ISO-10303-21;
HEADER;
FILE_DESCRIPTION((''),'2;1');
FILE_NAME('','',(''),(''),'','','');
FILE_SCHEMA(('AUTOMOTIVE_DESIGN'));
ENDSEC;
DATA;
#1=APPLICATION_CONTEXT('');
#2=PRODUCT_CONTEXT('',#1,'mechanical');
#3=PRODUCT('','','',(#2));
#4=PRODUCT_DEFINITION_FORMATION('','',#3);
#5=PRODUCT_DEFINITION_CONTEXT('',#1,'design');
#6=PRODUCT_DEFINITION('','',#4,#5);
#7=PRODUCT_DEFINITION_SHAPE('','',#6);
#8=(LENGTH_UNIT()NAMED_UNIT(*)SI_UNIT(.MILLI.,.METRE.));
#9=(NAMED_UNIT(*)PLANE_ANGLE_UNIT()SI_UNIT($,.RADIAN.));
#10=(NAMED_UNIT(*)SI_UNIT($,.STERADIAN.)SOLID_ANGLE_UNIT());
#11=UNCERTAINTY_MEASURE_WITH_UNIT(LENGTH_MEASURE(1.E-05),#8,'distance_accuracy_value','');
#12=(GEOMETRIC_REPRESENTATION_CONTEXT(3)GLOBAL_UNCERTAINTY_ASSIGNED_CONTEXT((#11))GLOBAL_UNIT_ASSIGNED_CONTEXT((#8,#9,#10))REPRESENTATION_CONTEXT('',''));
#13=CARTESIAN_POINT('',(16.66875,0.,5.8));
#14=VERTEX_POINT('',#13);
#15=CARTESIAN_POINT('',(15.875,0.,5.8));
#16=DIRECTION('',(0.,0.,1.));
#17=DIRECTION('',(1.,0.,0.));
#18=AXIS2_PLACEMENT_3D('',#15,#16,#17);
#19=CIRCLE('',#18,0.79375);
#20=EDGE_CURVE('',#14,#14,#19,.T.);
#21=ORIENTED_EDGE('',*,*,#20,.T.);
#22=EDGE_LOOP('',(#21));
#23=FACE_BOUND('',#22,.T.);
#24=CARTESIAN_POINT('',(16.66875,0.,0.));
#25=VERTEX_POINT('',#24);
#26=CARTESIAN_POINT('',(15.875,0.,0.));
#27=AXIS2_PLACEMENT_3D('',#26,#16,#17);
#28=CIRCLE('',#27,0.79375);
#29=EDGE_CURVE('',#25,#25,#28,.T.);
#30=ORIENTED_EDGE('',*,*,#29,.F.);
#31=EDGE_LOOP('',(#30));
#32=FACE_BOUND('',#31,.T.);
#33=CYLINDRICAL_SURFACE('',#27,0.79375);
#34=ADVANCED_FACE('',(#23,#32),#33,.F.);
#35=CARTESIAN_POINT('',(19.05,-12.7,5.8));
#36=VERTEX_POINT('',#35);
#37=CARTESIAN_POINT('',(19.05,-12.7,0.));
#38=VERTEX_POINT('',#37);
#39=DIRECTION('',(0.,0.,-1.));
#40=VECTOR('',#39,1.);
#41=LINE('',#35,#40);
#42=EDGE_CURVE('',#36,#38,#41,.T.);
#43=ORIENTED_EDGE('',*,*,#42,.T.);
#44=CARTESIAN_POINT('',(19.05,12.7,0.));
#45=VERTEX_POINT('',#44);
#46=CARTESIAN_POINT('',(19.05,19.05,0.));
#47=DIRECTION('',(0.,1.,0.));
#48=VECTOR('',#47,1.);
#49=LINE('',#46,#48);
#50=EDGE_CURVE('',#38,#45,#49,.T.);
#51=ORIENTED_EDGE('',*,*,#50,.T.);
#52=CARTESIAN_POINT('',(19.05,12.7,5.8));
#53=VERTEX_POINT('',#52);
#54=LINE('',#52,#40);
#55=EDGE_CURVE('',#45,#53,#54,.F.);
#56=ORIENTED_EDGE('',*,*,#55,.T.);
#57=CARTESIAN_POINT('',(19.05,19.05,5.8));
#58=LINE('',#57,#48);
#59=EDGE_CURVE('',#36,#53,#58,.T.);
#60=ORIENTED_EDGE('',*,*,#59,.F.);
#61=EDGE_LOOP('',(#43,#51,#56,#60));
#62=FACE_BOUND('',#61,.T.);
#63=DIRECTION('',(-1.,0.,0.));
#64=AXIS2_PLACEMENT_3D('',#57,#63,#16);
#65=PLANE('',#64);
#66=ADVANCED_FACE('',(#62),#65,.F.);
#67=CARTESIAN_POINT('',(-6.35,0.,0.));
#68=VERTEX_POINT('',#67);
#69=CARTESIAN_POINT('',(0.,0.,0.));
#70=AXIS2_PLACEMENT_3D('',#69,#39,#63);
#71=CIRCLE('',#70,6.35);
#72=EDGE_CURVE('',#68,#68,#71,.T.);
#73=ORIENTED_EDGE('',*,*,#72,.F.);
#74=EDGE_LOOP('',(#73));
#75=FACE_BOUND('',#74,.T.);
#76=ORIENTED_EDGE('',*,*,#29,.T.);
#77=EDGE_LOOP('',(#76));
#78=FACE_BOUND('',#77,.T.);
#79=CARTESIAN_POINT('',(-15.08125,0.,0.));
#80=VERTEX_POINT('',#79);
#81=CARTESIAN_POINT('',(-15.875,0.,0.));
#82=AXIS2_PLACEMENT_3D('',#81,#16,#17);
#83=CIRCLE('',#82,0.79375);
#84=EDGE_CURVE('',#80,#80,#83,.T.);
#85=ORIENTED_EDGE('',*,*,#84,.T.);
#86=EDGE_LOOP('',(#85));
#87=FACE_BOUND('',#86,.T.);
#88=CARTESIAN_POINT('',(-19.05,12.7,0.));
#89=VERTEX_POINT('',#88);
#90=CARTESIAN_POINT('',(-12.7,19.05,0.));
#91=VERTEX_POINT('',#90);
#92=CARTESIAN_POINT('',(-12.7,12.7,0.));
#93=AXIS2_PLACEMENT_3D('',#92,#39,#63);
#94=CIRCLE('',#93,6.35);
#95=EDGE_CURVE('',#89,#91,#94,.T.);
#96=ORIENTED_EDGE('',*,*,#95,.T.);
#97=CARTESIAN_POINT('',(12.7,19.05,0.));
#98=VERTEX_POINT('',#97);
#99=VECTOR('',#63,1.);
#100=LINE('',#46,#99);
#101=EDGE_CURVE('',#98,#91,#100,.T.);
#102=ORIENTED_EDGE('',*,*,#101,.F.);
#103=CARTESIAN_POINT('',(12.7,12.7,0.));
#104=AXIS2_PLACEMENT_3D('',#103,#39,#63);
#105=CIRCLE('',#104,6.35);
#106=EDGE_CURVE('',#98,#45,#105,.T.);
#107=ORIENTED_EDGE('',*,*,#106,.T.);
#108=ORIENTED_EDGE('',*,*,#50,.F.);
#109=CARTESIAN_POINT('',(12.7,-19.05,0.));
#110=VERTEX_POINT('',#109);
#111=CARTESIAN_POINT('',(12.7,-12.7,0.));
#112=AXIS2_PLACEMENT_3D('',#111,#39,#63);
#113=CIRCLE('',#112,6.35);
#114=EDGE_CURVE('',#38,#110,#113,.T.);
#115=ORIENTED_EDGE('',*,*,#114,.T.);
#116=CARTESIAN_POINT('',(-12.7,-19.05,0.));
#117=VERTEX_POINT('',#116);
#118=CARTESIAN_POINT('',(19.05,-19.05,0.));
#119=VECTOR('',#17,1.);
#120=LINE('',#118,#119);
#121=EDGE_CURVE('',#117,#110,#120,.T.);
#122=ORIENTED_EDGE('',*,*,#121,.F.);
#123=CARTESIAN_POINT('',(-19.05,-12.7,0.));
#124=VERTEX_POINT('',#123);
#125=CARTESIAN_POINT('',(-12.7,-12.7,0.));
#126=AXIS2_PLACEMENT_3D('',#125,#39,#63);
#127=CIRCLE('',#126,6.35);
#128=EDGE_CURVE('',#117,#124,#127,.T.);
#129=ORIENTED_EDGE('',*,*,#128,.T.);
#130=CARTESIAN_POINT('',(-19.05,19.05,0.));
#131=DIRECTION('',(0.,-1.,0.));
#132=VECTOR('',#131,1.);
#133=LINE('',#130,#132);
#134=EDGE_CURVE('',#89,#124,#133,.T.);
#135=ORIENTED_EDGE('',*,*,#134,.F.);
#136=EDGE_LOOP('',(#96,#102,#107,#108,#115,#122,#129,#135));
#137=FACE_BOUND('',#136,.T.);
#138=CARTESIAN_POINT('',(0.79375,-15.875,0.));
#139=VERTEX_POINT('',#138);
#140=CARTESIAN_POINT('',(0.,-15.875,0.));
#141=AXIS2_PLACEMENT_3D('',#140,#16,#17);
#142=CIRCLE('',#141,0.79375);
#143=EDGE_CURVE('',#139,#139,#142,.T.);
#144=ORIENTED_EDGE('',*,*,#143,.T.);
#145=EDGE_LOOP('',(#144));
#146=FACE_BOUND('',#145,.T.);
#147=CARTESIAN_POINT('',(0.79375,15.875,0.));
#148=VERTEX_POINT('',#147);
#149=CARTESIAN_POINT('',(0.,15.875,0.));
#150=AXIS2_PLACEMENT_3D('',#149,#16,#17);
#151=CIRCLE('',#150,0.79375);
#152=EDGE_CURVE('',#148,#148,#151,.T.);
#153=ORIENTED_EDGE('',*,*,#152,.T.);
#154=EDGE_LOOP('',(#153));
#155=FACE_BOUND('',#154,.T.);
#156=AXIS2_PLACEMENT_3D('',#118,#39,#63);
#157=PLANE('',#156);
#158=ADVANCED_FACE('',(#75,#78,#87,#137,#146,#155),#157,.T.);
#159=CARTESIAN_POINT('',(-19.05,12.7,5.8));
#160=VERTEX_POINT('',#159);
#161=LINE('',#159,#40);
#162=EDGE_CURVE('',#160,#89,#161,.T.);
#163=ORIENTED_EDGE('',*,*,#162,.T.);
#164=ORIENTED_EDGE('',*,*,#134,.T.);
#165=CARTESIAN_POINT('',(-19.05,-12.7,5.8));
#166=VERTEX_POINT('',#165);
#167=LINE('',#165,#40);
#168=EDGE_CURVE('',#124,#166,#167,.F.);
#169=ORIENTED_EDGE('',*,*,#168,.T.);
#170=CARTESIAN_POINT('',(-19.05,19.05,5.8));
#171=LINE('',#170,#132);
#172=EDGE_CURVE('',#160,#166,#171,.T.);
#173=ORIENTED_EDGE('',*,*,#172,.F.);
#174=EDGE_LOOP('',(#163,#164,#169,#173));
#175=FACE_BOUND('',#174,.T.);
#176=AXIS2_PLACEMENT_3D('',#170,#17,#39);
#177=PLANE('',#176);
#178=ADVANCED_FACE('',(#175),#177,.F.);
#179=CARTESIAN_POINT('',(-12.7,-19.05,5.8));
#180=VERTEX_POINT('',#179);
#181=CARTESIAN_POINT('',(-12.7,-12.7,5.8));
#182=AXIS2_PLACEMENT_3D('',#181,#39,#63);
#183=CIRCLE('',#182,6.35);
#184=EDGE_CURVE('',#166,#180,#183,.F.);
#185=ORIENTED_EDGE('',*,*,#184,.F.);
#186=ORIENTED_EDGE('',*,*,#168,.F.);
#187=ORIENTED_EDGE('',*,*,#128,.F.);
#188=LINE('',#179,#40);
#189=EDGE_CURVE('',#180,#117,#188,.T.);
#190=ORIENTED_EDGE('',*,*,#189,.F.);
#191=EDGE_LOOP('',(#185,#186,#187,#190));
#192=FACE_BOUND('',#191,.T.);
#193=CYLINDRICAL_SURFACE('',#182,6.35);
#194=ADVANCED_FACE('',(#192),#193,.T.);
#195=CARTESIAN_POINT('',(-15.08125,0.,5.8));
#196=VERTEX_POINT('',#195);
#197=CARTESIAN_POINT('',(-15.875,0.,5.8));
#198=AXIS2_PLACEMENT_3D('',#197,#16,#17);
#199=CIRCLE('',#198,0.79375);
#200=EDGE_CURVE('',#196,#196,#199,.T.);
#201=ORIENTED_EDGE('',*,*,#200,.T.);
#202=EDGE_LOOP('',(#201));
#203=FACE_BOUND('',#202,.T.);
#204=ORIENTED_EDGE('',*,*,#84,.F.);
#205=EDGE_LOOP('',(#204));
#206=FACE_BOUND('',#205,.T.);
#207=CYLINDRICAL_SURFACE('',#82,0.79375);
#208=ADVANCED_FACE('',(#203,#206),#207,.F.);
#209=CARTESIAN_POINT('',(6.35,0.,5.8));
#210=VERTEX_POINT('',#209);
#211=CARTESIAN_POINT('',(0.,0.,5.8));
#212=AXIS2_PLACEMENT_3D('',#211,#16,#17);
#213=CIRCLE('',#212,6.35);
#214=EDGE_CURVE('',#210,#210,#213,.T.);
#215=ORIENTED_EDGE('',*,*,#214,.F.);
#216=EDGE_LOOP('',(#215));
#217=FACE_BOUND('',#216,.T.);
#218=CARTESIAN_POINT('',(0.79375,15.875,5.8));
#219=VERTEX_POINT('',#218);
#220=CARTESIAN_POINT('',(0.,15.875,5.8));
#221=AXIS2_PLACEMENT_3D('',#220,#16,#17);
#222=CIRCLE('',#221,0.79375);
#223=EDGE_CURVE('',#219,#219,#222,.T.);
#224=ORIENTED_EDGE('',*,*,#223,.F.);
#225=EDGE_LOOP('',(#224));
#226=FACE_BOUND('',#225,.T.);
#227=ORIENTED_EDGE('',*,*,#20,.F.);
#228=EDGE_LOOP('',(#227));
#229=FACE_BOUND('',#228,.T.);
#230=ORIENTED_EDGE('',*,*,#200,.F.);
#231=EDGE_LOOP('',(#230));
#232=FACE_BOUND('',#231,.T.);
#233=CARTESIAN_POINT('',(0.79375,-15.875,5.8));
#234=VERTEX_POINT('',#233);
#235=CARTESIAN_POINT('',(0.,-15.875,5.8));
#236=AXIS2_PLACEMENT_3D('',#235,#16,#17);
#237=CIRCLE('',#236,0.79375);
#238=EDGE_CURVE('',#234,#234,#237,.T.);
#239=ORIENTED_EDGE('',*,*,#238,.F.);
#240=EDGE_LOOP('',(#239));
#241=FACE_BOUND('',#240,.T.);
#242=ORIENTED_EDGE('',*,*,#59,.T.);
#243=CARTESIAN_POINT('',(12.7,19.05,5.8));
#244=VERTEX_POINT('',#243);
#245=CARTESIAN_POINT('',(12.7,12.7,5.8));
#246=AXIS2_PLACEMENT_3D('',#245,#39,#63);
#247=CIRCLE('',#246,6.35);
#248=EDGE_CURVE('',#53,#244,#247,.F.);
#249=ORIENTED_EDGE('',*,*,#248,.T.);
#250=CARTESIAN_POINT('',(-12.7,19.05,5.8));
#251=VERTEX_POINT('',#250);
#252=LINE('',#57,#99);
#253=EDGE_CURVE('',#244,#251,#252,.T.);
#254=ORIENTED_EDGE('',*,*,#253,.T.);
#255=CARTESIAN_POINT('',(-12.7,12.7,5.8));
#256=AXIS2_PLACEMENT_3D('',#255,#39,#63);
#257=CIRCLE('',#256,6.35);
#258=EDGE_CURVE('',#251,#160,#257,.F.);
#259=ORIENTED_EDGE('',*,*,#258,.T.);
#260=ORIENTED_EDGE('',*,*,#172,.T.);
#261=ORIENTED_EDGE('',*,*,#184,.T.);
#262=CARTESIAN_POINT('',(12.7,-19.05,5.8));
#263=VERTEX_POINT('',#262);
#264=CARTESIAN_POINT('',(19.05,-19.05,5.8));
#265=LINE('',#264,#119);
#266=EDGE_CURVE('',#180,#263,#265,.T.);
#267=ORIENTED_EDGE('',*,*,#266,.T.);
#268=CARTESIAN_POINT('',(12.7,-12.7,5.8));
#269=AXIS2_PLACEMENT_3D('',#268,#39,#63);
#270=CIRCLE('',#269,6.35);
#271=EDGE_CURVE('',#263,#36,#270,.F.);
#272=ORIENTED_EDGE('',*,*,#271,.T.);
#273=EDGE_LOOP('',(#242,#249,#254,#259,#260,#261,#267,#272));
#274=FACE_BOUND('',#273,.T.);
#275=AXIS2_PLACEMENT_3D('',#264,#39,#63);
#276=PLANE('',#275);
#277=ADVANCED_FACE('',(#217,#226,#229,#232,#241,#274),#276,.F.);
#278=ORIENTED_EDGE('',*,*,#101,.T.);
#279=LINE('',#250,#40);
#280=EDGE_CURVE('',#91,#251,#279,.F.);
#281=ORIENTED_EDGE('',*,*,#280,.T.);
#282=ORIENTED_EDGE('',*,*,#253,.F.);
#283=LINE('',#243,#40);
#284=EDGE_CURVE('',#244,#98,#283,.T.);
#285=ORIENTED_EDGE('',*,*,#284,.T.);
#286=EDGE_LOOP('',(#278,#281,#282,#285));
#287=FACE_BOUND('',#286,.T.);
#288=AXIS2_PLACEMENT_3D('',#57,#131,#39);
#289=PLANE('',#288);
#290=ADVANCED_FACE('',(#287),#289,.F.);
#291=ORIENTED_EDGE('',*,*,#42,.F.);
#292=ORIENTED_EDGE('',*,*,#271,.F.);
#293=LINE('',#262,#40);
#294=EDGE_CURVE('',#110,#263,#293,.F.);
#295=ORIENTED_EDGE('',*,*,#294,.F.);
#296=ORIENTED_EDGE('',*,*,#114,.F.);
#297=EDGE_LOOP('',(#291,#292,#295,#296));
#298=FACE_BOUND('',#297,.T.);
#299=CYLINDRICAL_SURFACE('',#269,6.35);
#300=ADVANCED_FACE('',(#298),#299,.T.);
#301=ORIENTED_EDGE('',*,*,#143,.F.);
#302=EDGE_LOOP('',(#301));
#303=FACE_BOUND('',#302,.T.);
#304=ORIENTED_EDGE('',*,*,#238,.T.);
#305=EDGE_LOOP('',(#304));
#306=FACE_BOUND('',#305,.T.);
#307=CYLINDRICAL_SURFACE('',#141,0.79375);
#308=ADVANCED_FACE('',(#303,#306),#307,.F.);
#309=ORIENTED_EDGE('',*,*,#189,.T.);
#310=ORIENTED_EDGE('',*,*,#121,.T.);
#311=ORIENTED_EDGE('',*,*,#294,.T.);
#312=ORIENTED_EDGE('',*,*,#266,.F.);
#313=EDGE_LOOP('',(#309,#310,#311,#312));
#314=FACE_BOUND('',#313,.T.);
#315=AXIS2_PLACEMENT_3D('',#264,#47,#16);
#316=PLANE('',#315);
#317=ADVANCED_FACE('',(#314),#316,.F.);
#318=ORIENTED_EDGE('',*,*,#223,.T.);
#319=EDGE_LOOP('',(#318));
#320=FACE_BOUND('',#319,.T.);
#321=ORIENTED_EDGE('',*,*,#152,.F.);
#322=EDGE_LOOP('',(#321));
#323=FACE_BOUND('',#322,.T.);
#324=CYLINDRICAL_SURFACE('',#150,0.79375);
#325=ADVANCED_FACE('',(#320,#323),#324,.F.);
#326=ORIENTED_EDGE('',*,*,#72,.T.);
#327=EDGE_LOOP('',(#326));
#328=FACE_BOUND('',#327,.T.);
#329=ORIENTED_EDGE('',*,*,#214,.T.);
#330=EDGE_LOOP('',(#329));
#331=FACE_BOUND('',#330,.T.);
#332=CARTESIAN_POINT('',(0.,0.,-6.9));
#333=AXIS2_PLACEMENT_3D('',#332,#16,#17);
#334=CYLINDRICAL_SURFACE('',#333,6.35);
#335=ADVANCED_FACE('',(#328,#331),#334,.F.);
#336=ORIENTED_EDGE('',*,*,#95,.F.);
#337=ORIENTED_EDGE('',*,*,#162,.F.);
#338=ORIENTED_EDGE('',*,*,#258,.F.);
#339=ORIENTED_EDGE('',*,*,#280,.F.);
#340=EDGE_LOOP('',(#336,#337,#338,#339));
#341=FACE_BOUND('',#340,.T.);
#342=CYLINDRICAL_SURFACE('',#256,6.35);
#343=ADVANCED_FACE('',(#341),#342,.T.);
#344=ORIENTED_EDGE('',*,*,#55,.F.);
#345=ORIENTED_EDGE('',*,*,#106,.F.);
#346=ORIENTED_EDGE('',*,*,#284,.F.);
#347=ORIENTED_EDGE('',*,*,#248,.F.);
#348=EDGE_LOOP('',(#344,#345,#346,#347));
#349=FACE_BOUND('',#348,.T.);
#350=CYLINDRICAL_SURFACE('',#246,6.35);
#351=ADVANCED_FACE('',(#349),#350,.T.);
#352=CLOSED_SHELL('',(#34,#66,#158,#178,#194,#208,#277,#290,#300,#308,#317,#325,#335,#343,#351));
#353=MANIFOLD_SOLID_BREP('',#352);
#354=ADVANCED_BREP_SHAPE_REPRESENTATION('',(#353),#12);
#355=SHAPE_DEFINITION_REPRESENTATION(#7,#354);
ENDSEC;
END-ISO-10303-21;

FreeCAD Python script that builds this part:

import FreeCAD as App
import Part
import Sketcher
Q = App.Units.Quantity


def edges_at(feature, points):
    """Names of the edges that pass closest to the given points."""
    edges = feature.Shape.Edges
    near = lambda p: min(range(len(edges)), key=lambda i: edges[i].distToShape(Part.Vertex(*p))[0])
    return sorted({f"Edge{near(p) + 1}" for p in points})


def add_polygon(sketch, points):
    """Adds a closed chain of lines whose ends are joined by coincident constraints."""
    first, n = sketch.GeometryCount, len(points)
    for a, b in zip(points, points[1:] + points[:1]):
        sketch.addGeometry(Part.LineSegment(App.Vector(*a, 0), App.Vector(*b, 0)), False)
    for i in range(n):
        sketch.addConstraint(Sketcher.Constraint("Coincident", first + i, 2, first + (i + 1) % n, 1))

doc = App.newDocument("Part")
body = doc.addObject("PartDesign::Body", "Body")

sketch1 = doc.addObject("Sketcher::SketchObject", "Sketch")
body.addObject(sketch1)
sketch1.AttachmentSupport = (doc.XY_Plane, [""])
sketch1.MapMode = "FlatFace"
add_polygon(sketch1, [(-19, 19), (-19, -19), (19, -19), (19, 19)])
sketch1.addConstraint([
    Sketcher.Constraint("Vertical", 0),
    Sketcher.Constraint("Horizontal", 1),
    Sketcher.Constraint("Vertical", 2),
    Sketcher.Constraint("Horizontal", 3),
    Sketcher.Constraint("Symmetric", 0, 2, 2, 2, -1, 1),
    Sketcher.Constraint("Equal", 3, 0),
    Sketcher.Constraint("DistanceX", 1, 1, 1, 2, Q("1.5 in")),
])
pad1 = doc.addObject("PartDesign::Pad", "Pad")
body.addObject(pad1)
pad1.Profile = sketch1
pad1.Length = 5.8

sketch2 = doc.addObject("Sketcher::SketchObject", "Sketch001")
body.addObject(sketch2)
sketch2.AttachmentSupport = (doc.XY_Plane, [""])
sketch2.MapMode = "FlatFace"
sketch2.AttachmentOffset = App.Placement(App.Vector(0, 0, 5.8), App.Rotation())
sketch2.addGeometry([
    Part.Circle(App.Vector(0, 15.9, 0), App.Vector(0, 0, 1), 0.8),
    Part.Circle(App.Vector(15.9, 0, 0), App.Vector(0, 0, 1), 0.8),
    Part.Circle(App.Vector(0, -15.9, 0), App.Vector(0, 0, 1), 0.8),
    Part.Circle(App.Vector(-15.9, 0, 0), App.Vector(0, 0, 1), 0.8),
], False)
sketch2.addConstraint([
    Sketcher.Constraint("Equal", 0, 1),
    Sketcher.Constraint("Equal", 1, 2),
    Sketcher.Constraint("Equal", 2, 3),
    Sketcher.Constraint("Symmetric", 0, 3, 2, 3, -1, 1),
    Sketcher.Constraint("Symmetric", 1, 3, 3, 3, -1, 1),
    Sketcher.Constraint("PointOnObject", 0, 3, -2),
    Sketcher.Constraint("PointOnObject", 1, 3, -1),
    Sketcher.Constraint("Diameter", 0, Q("0.0625 in")),
    Sketcher.Constraint("DistanceY", 2, 3, 0, 3, Q("1.25 in")),
    Sketcher.Constraint("DistanceX", 3, 3, 1, 3, Q("1.25 in")),
])
pocket1 = doc.addObject("PartDesign::Pocket", "Pocket")
body.addObject(pocket1)
pocket1.Profile = sketch2
pocket1.Type = "ThroughAll"

sketch3 = doc.addObject("Sketcher::SketchObject", "Sketch002")
body.addObject(sketch3)
sketch3.AttachmentSupport = (doc.XY_Plane, [""])
sketch3.MapMode = "FlatFace"
sketch3.AttachmentOffset = App.Placement(App.Vector(0, 0, 5.8), App.Rotation())
sketch3.addGeometry(Part.Circle(App.Vector(0, 0, 0), App.Vector(0, 0, 1), 6), False)
sketch3.addConstraint([
    Sketcher.Constraint("Coincident", 0, 3, -1, 1),
    Sketcher.Constraint("Diameter", 0, Q("0.5 in")),
])
pocket2 = doc.addObject("PartDesign::Pocket", "Pocket001")
body.addObject(pocket2)
pocket2.Profile = sketch3
pocket2.Length = Q("0.5 in")
doc.recompute()

fillet = doc.addObject("PartDesign::Fillet", "Fillet")
body.addObject(fillet)
fillet.Base = (pocket2, edges_at(pocket2, [
    (19.05, -19.05, 2.9),
    (-19.05, -19.05, 2.9),
    (-19.05, 19.05, 2.9),
    (19.05, 19.05, 2.9),
]))
fillet.Radius = Q("0.25 in")

doc.recompute()
